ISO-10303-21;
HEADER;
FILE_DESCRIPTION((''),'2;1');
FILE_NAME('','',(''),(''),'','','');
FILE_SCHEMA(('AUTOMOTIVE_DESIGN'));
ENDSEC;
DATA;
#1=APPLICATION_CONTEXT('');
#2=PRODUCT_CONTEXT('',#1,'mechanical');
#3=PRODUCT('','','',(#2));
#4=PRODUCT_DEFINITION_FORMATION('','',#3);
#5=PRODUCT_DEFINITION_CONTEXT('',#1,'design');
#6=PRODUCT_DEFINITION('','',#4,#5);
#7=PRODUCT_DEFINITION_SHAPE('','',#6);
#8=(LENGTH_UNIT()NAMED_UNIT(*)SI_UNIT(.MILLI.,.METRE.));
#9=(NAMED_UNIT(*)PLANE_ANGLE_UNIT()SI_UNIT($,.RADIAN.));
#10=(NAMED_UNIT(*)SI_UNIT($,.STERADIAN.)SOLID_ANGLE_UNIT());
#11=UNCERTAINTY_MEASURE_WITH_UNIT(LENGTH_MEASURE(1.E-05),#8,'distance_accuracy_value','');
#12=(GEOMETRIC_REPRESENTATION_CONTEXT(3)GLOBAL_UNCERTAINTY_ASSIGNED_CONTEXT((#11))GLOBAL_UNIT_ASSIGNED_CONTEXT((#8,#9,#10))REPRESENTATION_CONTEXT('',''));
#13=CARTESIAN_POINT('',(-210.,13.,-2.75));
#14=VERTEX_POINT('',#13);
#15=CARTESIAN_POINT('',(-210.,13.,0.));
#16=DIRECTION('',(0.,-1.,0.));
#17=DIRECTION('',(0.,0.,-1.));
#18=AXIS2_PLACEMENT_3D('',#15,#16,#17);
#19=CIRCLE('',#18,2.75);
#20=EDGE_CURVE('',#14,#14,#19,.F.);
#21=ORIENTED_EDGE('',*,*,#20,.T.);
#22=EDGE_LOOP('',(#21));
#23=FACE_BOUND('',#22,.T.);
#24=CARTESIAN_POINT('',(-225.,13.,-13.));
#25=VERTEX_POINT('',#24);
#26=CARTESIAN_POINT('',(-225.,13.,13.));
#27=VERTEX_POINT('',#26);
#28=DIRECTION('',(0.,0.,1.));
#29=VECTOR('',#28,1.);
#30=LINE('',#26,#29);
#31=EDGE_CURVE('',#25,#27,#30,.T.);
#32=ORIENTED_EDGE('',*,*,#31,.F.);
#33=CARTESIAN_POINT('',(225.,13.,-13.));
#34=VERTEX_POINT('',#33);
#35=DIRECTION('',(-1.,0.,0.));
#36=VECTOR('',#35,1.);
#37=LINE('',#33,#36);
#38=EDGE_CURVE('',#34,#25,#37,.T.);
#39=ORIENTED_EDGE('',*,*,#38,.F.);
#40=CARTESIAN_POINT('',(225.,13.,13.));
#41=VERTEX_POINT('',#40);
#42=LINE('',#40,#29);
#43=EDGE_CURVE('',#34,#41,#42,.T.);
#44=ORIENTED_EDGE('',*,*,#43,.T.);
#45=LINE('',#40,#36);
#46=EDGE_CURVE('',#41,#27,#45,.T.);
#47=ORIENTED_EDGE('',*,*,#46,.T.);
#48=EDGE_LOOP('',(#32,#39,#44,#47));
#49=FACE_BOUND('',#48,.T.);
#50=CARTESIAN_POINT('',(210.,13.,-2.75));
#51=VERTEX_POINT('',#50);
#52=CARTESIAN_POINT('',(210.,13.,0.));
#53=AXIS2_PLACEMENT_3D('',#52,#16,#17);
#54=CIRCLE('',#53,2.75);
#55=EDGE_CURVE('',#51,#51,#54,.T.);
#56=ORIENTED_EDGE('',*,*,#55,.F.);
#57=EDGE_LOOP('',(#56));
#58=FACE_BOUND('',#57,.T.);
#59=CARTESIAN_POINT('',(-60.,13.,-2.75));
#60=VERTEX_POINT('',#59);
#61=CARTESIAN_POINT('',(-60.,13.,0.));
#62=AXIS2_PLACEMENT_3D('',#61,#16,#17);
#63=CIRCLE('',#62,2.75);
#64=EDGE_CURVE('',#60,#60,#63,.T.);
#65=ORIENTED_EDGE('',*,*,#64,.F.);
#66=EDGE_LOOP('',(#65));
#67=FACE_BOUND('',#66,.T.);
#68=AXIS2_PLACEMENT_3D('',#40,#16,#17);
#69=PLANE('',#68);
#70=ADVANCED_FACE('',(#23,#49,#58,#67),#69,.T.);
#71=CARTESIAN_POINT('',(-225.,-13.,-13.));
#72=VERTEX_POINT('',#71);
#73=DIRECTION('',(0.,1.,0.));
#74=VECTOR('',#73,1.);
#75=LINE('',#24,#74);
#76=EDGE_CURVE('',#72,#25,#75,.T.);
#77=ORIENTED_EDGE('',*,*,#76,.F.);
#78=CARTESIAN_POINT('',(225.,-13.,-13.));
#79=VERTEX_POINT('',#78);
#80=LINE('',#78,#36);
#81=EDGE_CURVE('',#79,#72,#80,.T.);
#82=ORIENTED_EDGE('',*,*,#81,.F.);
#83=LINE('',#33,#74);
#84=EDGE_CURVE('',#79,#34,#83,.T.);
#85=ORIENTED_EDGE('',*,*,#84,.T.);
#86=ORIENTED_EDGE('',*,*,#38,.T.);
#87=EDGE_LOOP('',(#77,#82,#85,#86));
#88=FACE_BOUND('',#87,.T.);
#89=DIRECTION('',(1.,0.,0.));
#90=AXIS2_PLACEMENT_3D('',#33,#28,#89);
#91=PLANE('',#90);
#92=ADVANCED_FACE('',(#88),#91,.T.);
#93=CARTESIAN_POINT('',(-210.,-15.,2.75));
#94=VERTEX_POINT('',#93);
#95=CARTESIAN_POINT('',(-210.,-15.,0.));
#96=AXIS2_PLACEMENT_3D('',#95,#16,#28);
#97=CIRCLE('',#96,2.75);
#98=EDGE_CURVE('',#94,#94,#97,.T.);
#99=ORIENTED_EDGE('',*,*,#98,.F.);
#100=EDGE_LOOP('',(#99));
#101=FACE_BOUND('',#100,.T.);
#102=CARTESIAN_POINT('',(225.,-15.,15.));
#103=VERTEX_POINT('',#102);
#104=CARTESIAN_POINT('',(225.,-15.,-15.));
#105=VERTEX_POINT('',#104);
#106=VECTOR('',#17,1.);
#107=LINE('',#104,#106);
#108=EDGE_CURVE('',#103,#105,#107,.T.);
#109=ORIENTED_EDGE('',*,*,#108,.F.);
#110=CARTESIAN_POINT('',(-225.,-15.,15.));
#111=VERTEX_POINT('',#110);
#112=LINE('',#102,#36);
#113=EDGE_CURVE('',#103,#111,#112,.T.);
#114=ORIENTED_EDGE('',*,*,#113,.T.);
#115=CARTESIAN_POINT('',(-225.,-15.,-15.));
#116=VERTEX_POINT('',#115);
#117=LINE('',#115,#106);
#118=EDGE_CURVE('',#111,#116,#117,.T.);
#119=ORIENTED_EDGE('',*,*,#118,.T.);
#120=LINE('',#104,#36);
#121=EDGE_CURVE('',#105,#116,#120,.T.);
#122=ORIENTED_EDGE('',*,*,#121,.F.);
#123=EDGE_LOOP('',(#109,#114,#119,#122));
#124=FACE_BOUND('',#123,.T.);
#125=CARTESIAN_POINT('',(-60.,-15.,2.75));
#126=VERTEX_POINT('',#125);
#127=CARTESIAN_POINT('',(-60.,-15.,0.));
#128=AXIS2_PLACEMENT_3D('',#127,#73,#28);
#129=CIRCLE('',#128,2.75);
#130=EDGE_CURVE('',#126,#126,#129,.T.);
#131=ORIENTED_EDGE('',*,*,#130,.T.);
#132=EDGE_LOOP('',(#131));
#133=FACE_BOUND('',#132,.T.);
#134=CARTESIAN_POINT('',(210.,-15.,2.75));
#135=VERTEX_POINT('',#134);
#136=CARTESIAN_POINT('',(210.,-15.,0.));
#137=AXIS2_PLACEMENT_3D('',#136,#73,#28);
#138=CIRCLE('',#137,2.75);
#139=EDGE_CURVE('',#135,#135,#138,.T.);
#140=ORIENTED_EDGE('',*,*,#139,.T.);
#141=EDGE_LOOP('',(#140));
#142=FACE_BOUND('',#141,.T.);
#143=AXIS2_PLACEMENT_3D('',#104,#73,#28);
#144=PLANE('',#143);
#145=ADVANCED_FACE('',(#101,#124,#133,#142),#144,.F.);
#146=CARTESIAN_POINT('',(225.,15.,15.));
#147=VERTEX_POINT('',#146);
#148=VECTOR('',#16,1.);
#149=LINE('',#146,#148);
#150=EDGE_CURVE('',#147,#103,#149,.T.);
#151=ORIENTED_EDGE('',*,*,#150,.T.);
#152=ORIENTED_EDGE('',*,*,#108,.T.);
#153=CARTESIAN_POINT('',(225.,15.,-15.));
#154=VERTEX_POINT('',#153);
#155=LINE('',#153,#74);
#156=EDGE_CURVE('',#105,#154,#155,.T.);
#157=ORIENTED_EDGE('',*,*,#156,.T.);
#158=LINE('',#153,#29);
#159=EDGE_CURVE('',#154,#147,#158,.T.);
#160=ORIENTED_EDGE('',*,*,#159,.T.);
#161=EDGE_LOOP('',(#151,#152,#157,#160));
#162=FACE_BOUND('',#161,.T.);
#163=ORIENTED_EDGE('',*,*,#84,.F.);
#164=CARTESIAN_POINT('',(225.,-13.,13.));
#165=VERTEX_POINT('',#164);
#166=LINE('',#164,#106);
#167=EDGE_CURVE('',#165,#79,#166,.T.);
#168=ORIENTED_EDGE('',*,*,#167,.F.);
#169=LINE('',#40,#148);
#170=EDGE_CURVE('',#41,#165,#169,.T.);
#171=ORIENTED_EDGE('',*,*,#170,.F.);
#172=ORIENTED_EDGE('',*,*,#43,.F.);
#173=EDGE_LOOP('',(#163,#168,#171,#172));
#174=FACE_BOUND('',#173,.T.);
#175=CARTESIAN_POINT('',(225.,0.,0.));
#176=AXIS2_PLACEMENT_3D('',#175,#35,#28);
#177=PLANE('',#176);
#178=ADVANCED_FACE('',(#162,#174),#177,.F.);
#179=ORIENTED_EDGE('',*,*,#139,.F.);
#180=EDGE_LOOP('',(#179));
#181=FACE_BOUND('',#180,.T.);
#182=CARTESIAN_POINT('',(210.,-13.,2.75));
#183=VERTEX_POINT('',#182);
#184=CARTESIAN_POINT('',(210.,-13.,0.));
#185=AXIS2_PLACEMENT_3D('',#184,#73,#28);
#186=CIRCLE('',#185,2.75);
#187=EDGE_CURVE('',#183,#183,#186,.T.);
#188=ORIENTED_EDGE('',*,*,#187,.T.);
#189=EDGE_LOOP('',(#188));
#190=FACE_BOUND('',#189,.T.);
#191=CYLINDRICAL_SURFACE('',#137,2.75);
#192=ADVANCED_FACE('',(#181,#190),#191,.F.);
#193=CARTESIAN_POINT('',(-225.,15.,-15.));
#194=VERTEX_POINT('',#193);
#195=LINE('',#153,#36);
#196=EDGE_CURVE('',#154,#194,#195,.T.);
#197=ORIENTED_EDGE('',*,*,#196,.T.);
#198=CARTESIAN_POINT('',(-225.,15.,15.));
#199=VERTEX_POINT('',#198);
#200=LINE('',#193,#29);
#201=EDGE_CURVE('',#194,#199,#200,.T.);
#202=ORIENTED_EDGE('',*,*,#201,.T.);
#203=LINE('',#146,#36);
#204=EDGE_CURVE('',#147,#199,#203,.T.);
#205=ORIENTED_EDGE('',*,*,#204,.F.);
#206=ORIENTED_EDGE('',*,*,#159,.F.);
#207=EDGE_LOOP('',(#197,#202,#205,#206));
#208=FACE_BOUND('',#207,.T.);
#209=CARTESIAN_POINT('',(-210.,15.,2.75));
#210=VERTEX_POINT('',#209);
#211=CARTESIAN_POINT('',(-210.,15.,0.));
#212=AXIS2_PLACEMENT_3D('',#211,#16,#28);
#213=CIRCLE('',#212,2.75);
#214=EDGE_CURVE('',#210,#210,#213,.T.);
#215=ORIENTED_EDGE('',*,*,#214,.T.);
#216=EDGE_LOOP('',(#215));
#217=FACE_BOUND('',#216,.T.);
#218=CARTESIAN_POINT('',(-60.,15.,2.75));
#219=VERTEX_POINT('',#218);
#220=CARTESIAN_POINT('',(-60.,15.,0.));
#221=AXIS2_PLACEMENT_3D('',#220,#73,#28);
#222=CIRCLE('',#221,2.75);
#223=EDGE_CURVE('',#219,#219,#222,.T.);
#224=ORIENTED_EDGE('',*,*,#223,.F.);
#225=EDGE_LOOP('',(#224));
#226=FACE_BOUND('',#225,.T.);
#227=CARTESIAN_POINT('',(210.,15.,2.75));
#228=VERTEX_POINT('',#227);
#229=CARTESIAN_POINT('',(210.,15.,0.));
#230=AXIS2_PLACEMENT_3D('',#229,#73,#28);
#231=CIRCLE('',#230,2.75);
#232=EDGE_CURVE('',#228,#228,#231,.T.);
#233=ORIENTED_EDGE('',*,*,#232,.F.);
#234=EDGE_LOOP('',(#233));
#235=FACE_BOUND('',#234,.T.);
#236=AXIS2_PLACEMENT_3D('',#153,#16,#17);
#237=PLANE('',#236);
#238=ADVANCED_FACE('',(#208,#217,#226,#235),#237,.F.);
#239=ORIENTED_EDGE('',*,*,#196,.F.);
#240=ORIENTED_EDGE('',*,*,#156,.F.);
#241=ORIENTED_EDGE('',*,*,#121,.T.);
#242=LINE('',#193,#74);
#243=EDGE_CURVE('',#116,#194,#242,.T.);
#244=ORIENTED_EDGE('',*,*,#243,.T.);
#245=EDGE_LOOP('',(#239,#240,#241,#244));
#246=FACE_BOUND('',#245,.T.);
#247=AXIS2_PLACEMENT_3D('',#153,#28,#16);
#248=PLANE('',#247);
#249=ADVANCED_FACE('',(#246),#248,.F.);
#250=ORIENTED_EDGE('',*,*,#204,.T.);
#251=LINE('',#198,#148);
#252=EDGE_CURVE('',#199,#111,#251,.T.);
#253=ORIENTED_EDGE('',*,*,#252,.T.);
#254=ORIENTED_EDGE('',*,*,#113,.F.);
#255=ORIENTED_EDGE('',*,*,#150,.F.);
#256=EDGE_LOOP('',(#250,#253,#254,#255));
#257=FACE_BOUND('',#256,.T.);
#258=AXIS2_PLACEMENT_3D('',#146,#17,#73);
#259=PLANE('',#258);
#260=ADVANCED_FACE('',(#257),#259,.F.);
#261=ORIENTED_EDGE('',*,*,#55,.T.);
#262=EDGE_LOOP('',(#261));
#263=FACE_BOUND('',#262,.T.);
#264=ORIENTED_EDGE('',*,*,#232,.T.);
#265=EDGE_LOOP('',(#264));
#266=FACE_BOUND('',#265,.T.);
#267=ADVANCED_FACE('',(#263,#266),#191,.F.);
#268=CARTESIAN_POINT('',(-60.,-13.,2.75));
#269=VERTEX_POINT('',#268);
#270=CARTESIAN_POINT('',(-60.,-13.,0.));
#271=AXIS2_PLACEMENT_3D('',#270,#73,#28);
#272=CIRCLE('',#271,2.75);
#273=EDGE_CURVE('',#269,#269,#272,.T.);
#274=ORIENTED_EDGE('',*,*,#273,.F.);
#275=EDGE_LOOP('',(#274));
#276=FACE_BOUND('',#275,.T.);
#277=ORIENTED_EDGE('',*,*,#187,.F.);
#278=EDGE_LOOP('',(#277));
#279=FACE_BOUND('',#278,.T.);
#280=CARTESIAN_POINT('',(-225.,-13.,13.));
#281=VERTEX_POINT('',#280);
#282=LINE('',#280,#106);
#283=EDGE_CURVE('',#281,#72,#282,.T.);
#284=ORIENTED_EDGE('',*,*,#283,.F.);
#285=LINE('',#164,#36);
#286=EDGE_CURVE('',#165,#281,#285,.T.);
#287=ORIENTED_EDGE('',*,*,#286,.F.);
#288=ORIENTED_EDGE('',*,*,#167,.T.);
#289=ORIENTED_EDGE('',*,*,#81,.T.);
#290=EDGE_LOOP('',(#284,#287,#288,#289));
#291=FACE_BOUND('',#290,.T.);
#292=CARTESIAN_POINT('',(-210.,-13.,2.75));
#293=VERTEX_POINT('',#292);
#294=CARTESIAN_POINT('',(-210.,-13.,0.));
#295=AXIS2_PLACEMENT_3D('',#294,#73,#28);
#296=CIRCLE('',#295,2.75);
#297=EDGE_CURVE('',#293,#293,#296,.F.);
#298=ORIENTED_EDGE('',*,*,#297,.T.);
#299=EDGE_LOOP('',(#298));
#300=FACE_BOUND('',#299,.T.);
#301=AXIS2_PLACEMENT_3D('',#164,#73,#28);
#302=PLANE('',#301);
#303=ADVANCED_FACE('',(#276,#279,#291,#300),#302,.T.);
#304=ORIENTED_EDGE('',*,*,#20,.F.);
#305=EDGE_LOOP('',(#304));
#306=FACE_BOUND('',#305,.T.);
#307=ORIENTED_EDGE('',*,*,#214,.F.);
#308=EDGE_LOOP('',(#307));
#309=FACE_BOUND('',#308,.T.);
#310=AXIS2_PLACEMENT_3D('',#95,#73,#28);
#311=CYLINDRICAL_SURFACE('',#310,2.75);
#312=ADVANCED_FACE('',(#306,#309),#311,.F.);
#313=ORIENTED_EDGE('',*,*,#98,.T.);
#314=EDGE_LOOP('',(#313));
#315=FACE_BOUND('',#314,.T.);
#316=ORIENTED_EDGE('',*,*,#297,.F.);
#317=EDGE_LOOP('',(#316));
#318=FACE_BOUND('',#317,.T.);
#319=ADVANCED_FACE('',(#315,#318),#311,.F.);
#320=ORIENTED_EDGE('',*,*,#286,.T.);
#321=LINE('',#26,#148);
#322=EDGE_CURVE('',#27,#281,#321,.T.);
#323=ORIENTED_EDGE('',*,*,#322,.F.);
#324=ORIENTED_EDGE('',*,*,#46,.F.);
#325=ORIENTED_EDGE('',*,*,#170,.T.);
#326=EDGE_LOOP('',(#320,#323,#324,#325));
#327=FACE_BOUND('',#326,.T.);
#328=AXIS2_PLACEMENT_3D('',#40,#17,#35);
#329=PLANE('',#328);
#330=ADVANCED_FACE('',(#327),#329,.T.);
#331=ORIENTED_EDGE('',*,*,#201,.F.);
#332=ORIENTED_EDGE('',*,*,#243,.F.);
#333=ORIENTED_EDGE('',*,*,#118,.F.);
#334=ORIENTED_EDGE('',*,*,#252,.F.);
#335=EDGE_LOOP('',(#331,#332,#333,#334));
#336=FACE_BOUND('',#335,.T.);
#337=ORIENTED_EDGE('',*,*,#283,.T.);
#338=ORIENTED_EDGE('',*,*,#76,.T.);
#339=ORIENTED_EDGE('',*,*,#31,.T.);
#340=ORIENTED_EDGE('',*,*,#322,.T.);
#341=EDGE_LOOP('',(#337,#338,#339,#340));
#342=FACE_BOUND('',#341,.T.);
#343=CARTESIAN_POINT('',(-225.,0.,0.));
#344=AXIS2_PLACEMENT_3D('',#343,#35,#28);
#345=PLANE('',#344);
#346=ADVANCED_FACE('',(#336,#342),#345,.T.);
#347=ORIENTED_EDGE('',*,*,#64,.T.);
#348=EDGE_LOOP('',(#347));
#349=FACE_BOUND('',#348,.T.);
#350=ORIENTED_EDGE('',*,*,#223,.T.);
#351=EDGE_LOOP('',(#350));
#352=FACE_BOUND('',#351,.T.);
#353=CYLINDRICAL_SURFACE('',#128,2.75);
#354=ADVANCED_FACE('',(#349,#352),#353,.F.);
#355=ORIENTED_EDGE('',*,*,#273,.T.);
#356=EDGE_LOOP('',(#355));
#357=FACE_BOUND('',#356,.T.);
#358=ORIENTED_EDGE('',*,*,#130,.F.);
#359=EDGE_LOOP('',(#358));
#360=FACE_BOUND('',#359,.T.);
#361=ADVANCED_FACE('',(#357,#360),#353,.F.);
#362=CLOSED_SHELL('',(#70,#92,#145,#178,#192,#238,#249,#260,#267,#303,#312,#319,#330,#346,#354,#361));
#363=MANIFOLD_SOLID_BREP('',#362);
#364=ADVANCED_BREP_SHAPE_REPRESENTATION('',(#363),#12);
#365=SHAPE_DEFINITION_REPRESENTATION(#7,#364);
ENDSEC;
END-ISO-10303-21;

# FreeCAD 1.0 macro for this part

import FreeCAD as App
import Part
import Sketcher
Q = App.Units.Quantity

doc = App.newDocument("Part")
body = doc.addObject("PartDesign::Body", "Body")

sketch1 = doc.addObject("Sketcher::SketchObject", "Sketch")
body.addObject(sketch1)
sketch1.AttachmentSupport = (doc.YZ_Plane, [""])
sketch1.MapMode = "FlatFace"
sketch1.addGeometry(Part.LineSegment(App.Vector(15, 15, 0), App.Vector(-15, 15, 0)), False)
sketch1.addGeometry(Part.LineSegment(App.Vector(-15, 15, 0), App.Vector(-15, -15, 0)), False)
sketch1.addGeometry(Part.LineSegment(App.Vector(-15, -15, 0), App.Vector(15, -15, 0)), False)
sketch1.addGeometry(Part.LineSegment(App.Vector(15, -15, 0), App.Vector(15, 15, 0)), False)
sketch1.addGeometry(Part.LineSegment(App.Vector(-13, -13, 0), App.Vector(-13, 13, 0)), False)
sketch1.addGeometry(Part.LineSegment(App.Vector(-13, 13, 0), App.Vector(13, 13, 0)), False)
sketch1.addGeometry(Part.LineSegment(App.Vector(13, 13, 0), App.Vector(13, -13, 0)), False)
sketch1.addGeometry(Part.LineSegment(App.Vector(13, -13, 0), App.Vector(-13, -13, 0)), False)
sketch1.addConstraint(Sketcher.Constraint("Coincident", 0, 2, 1, 1))
sketch1.addConstraint(Sketcher.Constraint("Coincident", 1, 2, 2, 1))
sketch1.addConstraint(Sketcher.Constraint("Coincident", 2, 2, 3, 1))
sketch1.addConstraint(Sketcher.Constraint("Coincident", 3, 2, 0, 1))
sketch1.addConstraint(Sketcher.Constraint("Coincident", 4, 2, 5, 1))
sketch1.addConstraint(Sketcher.Constraint("Coincident", 5, 2, 6, 1))
sketch1.addConstraint(Sketcher.Constraint("Coincident", 6, 2, 7, 1))
sketch1.addConstraint(Sketcher.Constraint("Coincident", 7, 2, 4, 1))
sketch1.addConstraint(Sketcher.Constraint("Horizontal", 0))
sketch1.addConstraint(Sketcher.Constraint("Vertical", 1))
sketch1.addConstraint(Sketcher.Constraint("Horizontal", 2))
sketch1.addConstraint(Sketcher.Constraint("Vertical", 3))
sketch1.addConstraint(Sketcher.Constraint("Vertical", 4))
sketch1.addConstraint(Sketcher.Constraint("Horizontal", 5))
sketch1.addConstraint(Sketcher.Constraint("Vertical", 6))
sketch1.addConstraint(Sketcher.Constraint("Horizontal", 7))
sketch1.addConstraint(Sketcher.Constraint("Symmetric", 0, 2, 2, 2, -1, 1))
sketch1.addConstraint(Sketcher.Constraint("Symmetric", 4, 2, 6, 2, -1, 1))
sketch1.addConstraint(Sketcher.Constraint("Equal", 2, 1))
sketch1.addConstraint(Sketcher.Constraint("Equal", 7, 4))
sketch1.addConstraint(Sketcher.Constraint("DistanceX", 0, 2, 0, 1, Q("30 mm")))
sketch1.addConstraint(Sketcher.Constraint("DistanceX", 5, 1, 5, 2, Q("26 mm")))
pad1 = doc.addObject("PartDesign::Pad", "Pad")
body.addObject(pad1)
pad1.Profile = sketch1
pad1.Length = 450
pad1.Midplane = True

sketch2 = doc.addObject("Sketcher::SketchObject", "Sketch001")
body.addObject(sketch2)
sketch2.AttachmentSupport = (doc.XZ_Plane, [""])
sketch2.MapMode = "FlatFace"
sketch2.addGeometry(Part.Circle(App.Vector(210, 0, 0), App.Vector(0, 0, 1), 2.8), False)
sketch2.addConstraint(Sketcher.Constraint("PointOnObject", 0, 3, -1))
sketch2.addConstraint(Sketcher.Constraint("Diameter", 0, Q("5.5 mm")))
sketch2.addConstraint(Sketcher.Constraint("DistanceX", -1, 1, 0, 3, Q("210 mm")))
pocket1 = doc.addObject("PartDesign::Pocket", "Pocket")
body.addObject(pocket1)
pocket1.Profile = sketch2
pocket1.Length = 453.995575
pocket1.Midplane = True
doc.recompute()

mirrored = doc.addObject("PartDesign::Mirrored", "Mirrored")
body.addObject(mirrored)
mirrored.Originals = [pocket1]
mirrored.MirrorPlane = (doc.YZ_Plane, [""])
body.Tip = mirrored

sketch3 = doc.addObject("Sketcher::SketchObject", "Sketch002")
body.addObject(sketch3)
sketch3.AttachmentSupport = (doc.XZ_Plane, [""])
sketch3.MapMode = "FlatFace"
sketch3.addGeometry(Part.Circle(App.Vector(-60, 0, 0), App.Vector(0, 0, 1), 2.8), False)
sketch3.addConstraint(Sketcher.Constraint("PointOnObject", 0, 3, -1))
sketch3.addConstraint(Sketcher.Constraint("Diameter", 0, Q("5.5 mm")))
sketch3.addConstraint(Sketcher.Constraint("DistanceX", 0, 3, -1, 1, Q("60 mm")))
pocket2 = doc.addObject("PartDesign::Pocket", "Pocket001")
body.addObject(pocket2)
pocket2.Profile = sketch3
pocket2.Type = "ThroughAll"
pocket2.Midplane = True

doc.recompute()
